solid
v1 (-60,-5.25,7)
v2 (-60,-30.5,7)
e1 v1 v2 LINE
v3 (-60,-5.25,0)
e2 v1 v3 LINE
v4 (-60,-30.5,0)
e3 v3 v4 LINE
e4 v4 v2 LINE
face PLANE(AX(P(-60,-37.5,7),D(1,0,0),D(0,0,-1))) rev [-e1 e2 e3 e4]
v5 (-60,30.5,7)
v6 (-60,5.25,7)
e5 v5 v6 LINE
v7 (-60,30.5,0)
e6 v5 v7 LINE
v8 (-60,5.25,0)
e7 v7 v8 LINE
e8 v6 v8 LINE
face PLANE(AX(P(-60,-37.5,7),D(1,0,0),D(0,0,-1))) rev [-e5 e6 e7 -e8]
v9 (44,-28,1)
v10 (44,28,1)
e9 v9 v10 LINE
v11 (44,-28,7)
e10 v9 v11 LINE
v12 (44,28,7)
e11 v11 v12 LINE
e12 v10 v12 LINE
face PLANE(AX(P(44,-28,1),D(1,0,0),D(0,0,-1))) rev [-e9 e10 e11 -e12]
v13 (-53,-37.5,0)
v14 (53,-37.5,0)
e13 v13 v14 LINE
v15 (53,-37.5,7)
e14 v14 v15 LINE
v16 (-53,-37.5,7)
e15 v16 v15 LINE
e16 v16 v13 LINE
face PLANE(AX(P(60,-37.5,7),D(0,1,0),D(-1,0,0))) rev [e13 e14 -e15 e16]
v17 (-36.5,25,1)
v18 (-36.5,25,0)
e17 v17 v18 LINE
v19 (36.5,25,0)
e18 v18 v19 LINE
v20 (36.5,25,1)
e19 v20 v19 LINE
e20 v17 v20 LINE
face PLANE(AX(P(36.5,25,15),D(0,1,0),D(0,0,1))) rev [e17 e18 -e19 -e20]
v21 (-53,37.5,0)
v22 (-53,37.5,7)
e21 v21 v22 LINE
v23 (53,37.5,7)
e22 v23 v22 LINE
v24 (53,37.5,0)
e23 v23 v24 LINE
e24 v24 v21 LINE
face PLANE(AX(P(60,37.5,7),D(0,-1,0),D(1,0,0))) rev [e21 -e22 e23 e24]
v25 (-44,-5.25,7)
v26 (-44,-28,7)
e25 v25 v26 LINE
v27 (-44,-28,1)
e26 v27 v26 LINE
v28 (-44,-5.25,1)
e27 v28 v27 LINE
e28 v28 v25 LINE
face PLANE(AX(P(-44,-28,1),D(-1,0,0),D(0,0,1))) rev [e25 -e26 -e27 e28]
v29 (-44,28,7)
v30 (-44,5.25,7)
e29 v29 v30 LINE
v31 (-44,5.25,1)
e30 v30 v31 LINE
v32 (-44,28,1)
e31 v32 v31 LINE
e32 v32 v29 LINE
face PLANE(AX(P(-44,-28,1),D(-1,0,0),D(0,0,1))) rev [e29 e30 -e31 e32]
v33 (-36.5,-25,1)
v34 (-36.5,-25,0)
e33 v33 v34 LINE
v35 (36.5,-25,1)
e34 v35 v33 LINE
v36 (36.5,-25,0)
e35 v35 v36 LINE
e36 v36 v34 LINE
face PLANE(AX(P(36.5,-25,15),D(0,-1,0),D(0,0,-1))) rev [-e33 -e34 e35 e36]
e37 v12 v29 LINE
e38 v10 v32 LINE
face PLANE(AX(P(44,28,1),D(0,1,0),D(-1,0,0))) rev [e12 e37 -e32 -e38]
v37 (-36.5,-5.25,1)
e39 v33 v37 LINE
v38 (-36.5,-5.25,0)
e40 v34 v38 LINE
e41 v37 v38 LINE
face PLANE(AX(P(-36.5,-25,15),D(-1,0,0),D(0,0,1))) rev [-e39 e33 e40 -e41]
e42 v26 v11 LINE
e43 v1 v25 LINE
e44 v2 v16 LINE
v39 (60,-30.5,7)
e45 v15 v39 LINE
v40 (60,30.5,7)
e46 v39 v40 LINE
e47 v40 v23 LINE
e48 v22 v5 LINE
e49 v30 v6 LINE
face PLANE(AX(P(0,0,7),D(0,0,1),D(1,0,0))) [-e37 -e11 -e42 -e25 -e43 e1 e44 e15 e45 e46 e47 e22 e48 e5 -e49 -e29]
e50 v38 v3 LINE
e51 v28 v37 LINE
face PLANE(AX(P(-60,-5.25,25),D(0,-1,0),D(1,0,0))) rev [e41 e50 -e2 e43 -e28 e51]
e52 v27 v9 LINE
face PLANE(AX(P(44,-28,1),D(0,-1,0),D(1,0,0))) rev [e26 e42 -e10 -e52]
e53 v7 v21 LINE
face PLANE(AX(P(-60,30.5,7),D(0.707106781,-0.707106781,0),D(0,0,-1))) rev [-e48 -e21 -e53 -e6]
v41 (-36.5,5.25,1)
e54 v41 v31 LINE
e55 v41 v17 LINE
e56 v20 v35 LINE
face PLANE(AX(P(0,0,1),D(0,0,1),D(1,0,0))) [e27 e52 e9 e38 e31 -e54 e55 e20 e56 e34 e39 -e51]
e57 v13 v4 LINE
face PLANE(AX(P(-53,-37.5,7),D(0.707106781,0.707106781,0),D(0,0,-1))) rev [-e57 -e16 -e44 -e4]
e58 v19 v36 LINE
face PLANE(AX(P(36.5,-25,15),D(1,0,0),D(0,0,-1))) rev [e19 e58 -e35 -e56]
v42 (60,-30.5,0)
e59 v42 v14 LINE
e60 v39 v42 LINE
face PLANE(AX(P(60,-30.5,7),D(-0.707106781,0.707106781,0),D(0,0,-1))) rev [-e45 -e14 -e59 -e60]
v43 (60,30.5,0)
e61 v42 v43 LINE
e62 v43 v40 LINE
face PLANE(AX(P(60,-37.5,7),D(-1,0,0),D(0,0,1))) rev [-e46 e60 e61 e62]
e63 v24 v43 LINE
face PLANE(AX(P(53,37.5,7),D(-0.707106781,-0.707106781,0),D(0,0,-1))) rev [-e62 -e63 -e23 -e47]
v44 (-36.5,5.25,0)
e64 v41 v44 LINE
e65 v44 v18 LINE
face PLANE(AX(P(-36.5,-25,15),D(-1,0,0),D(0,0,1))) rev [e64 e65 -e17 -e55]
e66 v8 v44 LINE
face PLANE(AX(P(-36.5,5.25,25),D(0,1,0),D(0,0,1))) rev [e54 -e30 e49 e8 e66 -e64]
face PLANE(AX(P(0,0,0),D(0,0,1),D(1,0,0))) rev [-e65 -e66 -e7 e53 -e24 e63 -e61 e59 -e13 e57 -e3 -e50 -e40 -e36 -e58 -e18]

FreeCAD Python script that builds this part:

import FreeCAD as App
import Part
import Sketcher
from FreeCAD import Vector


def edges_at(feature, points):
    """Names of the edges that pass closest to the given points."""
    edges = feature.Shape.Edges
    near = lambda p: min(range(len(edges)), key=lambda i: edges[i].distToShape(Part.Vertex(*p))[0])
    return sorted({f"Edge{near(p) + 1}" for p in points})


def add_polygon(sketch, points):
    """Adds a closed chain of lines whose ends are joined by coincident constraints."""
    first, n = sketch.GeometryCount, len(points)
    for a, b in zip(points, points[1:] + points[:1]):
        sketch.addGeometry(Part.LineSegment(App.Vector(*a, 0), App.Vector(*b, 0)), False)
    for i in range(n):
        sketch.addConstraint(Sketcher.Constraint("Coincident", first + i, 2, first + (i + 1) % n, 1))

doc = App.newDocument("Part")
body = doc.addObject("PartDesign::Body", "Body")

# Sketch on XY plane
sketch1 = body.newObject("Sketcher::SketchObject", "Sketch")
sketch1.AttachmentSupport = (doc.getObject("XY_Plane"), [""])
sketch1.MapMode = "FlatFace"
add_polygon(sketch1, [(-60, 37.5), (-60, -37.5), (60, -37.5), (60, 37.5)])  # lines 0-3
sketch1.addConstraint([
    Sketcher.Constraint("Vertical", 0),
    Sketcher.Constraint("Horizontal", 1),
    Sketcher.Constraint("Vertical", 2),
    Sketcher.Constraint("Horizontal", 3),
    Sketcher.Constraint("Symmetric", 0, 2, 2, 2, -1, 1),
    Sketcher.Constraint("DistanceX", 1, 1, 1, 2, 120.0),
    Sketcher.Constraint("DistanceY", 0, 2, 0, 1, 75.0),
])
pad1 = body.newObject("PartDesign::Pad", "Pad")
pad1.Profile = sketch1
pad1.Length = 7

# Sketch on XY plane
sketch2 = body.newObject("Sketcher::SketchObject", "Sketch001")
sketch2.AttachmentSupport = (doc.getObject("XY_Plane"), [""])
sketch2.MapMode = "FlatFace"
add_polygon(sketch2, [(36.5, 25), (36.5, -25), (-36.5, -25), (-36.5, 25)])  # lines 0-3
sketch2.addConstraint([
    Sketcher.Constraint("Vertical", 0),
    Sketcher.Constraint("Horizontal", 1),
    Sketcher.Constraint("Vertical", 2),
    Sketcher.Constraint("Horizontal", 3),
    Sketcher.Constraint("Symmetric", 0, 2, 2, 2, -1, 1),
    Sketcher.Constraint("DistanceX", 1, 2, 1, 1, 73.0),
    Sketcher.Constraint("DistanceY", 0, 2, 0, 1, 50.0),
])
pocket1 = body.newObject("PartDesign::Pocket", "Pocket")
pocket1.Profile = sketch2
pocket1.Length = 15
pocket1.Reversed = True

# Sketch on XY plane
sketch3 = body.newObject("Sketcher::SketchObject", "Sketch002")
sketch3.AttachmentSupport = (doc.getObject("XY_Plane"), [""])
sketch3.MapMode = "FlatFace"
sketch3.AttachmentOffset = App.Placement(Vector(0, 0, 7), App.Rotation())
add_polygon(sketch3, [(-44, 28), (-44, -28), (44, -28), (44, 28)])  # lines 0-3
sketch3.addConstraint([
    Sketcher.Constraint("Vertical", 0),
    Sketcher.Constraint("Horizontal", 1),
    Sketcher.Constraint("Vertical", 2),
    Sketcher.Constraint("Horizontal", 3),
    Sketcher.Constraint("Symmetric", 0, 2, 2, 2, -1, 1),
    Sketcher.Constraint("DistanceX", 1, 1, 1, 2, 88.0),
    Sketcher.Constraint("DistanceY", 0, 2, 0, 1, 56.0),
])
pocket2 = body.newObject("PartDesign::Pocket", "Pocket001")
pocket2.Profile = sketch3
pocket2.Length = 6

# Sketch on XY plane
sketch4 = body.newObject("Sketcher::SketchObject", "Sketch003")
sketch4.AttachmentSupport = (doc.getObject("XY_Plane"), [""])
sketch4.MapMode = "FlatFace"
add_polygon(sketch4, [(-36.5, 5.25), (-36.5, -5.25), (-60, -5.25), (-60, 5.25)])  # lines 0-3
sketch4.addConstraint([
    Sketcher.Constraint("Vertical", 0),
    Sketcher.Constraint("Horizontal", 1),
    Sketcher.Constraint("Vertical", 2),
    Sketcher.Constraint("Horizontal", 3),
    Sketcher.Constraint("DistanceX", 1, 2, 1, 1, 23.5),
    Sketcher.Constraint("DistanceY", 0, 2, 0, 1, 10.5),
    Sketcher.Constraint("DistanceX", 1, 2, -1, 1, 60.0),
    Sketcher.Constraint("DistanceY", 0, 2, -1, 1, 5.25),
])
pocket3 = body.newObject("PartDesign::Pocket", "Pocket002")
pocket3.Profile = sketch4
pocket3.Length = 25
pocket3.Reversed = True
doc.recompute()

chamfer = body.newObject("PartDesign::Chamfer", "Chamfer")
chamfer.Base = (pocket3, edges_at(pocket3, [
    (-60, 37.5, 3.5),
    (60, 37.5, 3.5),
    (60, -37.5, 3.5),
    (-60, -37.5, 3.5),
]))
chamfer.Size = 7

doc.recompute()
